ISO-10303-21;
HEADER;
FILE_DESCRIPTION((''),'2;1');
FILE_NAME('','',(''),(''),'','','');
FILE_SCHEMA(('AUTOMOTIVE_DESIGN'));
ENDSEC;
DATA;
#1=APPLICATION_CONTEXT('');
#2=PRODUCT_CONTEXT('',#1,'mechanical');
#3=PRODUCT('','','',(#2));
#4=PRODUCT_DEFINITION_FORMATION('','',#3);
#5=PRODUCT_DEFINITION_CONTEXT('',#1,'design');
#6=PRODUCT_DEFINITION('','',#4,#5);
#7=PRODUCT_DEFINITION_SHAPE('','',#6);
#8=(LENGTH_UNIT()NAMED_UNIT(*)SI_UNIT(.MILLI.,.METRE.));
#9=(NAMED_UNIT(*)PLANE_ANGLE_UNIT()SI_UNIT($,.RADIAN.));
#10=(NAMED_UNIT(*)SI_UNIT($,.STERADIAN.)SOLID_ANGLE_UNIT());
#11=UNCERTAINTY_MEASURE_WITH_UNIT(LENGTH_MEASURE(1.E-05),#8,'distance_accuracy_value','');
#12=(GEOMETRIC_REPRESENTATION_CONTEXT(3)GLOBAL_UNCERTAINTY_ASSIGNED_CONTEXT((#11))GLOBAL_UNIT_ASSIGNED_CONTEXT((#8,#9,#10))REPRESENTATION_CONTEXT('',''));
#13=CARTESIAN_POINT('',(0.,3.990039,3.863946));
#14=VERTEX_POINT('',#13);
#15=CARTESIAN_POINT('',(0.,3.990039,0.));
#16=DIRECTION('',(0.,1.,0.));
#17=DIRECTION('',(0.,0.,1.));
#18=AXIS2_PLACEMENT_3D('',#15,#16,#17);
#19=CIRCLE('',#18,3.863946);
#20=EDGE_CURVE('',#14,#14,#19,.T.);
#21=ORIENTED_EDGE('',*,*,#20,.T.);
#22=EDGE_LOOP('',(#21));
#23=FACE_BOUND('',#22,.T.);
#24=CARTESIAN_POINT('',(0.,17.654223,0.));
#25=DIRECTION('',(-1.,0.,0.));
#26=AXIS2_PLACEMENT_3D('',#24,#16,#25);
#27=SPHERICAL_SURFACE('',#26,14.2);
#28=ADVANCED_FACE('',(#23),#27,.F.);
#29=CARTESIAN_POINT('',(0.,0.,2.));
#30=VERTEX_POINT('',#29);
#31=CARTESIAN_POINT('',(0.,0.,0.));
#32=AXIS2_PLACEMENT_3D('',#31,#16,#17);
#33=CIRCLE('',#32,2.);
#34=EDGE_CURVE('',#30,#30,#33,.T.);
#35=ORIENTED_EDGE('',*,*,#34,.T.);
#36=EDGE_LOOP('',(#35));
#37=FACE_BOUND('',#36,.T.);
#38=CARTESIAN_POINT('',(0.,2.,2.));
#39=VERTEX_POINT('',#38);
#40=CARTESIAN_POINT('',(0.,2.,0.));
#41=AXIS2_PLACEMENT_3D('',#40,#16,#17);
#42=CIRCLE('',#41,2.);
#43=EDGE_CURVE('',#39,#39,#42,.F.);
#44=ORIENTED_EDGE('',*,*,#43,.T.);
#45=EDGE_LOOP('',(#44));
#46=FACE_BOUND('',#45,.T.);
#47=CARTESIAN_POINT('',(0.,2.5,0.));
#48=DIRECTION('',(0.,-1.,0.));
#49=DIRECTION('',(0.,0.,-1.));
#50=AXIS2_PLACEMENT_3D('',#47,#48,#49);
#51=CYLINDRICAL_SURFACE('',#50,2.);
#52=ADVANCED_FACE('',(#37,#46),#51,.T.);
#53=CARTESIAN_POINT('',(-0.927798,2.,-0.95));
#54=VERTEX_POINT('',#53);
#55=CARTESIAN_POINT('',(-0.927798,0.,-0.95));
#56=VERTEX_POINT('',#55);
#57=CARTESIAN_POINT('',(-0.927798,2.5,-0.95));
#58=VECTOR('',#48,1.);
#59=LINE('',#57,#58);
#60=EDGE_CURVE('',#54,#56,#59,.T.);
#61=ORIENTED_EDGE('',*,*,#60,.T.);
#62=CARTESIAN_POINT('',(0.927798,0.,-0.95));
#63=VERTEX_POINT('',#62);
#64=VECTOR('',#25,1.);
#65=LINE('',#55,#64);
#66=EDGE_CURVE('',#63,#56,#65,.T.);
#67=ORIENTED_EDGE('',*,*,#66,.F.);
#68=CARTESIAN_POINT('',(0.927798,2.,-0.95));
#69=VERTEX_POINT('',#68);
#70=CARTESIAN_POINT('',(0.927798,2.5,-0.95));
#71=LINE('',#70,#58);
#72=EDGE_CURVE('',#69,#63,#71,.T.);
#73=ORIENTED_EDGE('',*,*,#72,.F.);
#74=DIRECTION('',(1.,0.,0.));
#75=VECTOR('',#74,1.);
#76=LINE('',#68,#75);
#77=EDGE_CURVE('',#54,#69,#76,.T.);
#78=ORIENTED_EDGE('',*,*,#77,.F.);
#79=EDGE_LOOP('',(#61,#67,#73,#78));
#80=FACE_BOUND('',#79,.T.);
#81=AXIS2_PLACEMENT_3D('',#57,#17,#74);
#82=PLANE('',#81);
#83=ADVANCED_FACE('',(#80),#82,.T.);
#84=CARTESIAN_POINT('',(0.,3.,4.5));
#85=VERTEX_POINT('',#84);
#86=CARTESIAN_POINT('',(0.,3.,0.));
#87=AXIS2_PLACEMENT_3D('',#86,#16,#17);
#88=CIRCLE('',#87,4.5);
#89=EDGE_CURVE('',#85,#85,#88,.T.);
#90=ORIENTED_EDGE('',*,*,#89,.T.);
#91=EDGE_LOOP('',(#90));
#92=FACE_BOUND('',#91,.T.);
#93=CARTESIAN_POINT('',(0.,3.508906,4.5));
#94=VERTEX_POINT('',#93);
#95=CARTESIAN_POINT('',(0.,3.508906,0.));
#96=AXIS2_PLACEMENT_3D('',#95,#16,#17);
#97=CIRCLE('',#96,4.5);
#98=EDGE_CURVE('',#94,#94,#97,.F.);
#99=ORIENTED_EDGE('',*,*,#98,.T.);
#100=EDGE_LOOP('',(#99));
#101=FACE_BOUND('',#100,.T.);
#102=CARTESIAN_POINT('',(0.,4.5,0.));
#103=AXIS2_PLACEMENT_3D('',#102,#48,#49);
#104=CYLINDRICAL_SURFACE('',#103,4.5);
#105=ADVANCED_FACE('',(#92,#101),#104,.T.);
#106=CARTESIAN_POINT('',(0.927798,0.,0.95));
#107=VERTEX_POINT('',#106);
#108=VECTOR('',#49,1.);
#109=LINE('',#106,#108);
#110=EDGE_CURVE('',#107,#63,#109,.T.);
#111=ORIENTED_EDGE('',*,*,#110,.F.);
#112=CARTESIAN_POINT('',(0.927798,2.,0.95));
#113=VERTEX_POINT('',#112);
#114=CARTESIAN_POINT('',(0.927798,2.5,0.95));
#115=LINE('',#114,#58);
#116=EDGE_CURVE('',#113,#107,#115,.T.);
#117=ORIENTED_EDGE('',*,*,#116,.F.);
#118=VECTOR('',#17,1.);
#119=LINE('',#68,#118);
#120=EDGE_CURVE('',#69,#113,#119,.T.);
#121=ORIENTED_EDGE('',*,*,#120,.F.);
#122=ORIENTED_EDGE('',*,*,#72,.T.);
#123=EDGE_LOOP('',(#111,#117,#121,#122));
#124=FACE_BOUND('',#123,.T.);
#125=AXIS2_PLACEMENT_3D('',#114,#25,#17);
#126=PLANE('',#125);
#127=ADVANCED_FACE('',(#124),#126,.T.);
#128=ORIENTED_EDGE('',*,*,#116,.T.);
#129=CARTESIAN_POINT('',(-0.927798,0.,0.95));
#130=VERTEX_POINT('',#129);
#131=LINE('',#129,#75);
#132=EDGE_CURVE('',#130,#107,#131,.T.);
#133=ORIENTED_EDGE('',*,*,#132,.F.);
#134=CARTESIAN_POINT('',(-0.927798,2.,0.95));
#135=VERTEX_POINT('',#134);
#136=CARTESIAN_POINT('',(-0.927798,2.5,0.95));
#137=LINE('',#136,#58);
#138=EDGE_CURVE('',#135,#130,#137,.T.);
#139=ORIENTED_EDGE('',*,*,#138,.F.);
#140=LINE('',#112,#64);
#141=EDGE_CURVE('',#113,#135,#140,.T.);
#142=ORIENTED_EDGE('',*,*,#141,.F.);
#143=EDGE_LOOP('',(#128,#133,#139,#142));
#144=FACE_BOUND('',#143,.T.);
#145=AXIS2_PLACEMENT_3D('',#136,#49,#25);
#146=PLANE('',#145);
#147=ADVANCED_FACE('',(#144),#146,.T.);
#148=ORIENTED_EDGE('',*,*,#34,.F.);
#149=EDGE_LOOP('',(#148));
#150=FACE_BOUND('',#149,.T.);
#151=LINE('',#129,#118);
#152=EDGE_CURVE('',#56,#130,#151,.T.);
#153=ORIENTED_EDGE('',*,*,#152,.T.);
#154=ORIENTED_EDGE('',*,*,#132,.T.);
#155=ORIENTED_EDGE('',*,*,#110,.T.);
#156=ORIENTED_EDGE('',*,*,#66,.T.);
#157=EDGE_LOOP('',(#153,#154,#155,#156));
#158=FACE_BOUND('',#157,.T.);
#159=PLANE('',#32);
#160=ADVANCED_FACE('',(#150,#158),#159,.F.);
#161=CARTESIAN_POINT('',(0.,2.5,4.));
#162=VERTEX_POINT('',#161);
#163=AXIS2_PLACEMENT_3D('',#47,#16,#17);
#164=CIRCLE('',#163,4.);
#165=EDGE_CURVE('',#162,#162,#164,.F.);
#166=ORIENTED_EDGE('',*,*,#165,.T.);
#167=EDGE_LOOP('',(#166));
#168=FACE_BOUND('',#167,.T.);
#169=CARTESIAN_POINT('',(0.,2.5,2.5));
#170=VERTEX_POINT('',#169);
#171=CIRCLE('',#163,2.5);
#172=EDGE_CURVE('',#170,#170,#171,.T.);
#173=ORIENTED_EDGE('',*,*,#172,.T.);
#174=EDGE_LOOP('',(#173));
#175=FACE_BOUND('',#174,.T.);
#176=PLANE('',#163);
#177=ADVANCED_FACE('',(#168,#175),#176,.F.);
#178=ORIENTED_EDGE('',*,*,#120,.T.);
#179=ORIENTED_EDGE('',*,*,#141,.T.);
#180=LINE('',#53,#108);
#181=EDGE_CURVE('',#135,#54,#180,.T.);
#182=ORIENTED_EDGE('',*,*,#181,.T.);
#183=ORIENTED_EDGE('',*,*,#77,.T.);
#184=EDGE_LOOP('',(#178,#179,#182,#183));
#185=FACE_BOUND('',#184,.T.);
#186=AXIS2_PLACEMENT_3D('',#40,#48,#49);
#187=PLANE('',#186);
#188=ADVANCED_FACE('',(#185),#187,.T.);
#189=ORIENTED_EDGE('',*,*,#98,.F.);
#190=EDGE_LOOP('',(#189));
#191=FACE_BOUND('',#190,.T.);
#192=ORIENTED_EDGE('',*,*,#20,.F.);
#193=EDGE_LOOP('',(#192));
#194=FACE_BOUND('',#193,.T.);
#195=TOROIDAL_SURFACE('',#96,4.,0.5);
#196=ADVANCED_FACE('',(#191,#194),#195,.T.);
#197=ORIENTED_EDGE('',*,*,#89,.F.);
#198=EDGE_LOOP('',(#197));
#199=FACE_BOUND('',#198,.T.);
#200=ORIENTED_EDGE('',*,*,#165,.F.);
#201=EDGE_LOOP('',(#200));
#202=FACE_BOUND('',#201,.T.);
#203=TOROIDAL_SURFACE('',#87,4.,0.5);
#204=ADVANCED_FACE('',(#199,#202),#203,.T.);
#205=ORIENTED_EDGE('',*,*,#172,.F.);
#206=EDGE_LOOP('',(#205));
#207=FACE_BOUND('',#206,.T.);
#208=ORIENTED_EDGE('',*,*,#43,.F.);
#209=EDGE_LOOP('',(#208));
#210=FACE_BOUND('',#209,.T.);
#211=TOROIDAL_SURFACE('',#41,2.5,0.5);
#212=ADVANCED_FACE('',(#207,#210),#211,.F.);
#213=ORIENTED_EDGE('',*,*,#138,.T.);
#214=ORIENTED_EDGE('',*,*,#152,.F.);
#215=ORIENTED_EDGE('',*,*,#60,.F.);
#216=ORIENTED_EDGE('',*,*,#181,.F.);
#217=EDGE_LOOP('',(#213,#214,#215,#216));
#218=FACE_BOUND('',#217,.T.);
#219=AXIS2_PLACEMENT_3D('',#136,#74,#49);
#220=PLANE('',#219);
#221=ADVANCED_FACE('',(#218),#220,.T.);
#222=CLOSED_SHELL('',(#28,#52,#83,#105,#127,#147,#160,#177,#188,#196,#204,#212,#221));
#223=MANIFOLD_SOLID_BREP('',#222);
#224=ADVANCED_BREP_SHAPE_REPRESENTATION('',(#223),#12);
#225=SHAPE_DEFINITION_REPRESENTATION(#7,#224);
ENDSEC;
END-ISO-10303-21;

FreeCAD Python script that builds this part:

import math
import FreeCAD as App
import Part
import Sketcher
from FreeCAD import Vector


def edges_at(feature, points):
    """Names of the edges that pass closest to the given points."""
    edges = feature.Shape.Edges
    near = lambda p: min(range(len(edges)), key=lambda i: edges[i].distToShape(Part.Vertex(*p))[0])
    return sorted({f"Edge{near(p) + 1}" for p in points})


def add_polygon(sketch, points):
    """Adds a closed chain of lines whose ends are joined by coincident constraints."""
    first, n = sketch.GeometryCount, len(points)
    for a, b in zip(points, points[1:] + points[:1]):
        sketch.addGeometry(Part.LineSegment(App.Vector(*a, 0), App.Vector(*b, 0)), False)
    for i in range(n):
        sketch.addConstraint(Sketcher.Constraint("Coincident", first + i, 2, first + (i + 1) % n, 1))

doc = App.newDocument("Part")
body = doc.addObject("PartDesign::Body", "Body")

# Sketch on XZ plane
sketch1 = body.newObject("Sketcher::SketchObject", "Sketch")
sketch1.AttachmentSupport = (doc.getObject("XZ_Plane"), [""])
sketch1.MapMode = "FlatFace"
sketch1.addGeometry(Part.Circle(Vector(0, 0, 0), Vector(0, 0, 1), 2), False)  # 0
add_polygon(sketch1, [(0.927798, 0.95), (-0.927798, 0.95), (-0.927798, -0.95), (0.927798, -0.95)])  # lines 1-4
sketch1.addConstraint(Sketcher.Constraint("Horizontal", 1))
sketch1.addConstraint(Sketcher.Constraint("Vertical", 2))
sketch1.addConstraint(Sketcher.Constraint("Horizontal", 3))
sketch1.addConstraint(Sketcher.Constraint("Vertical", 4))
sketch1.addConstraint(Sketcher.Constraint("Coincident", 0, 3, -1, 1))
sketch1.addConstraint(Sketcher.Constraint("Symmetric", 1, 2, 3, 2, -1, 1))
sketch1.addConstraint(Sketcher.Constraint("Diameter", 0, 4.0))
sketch1.addConstraint(Sketcher.Constraint("DistanceY", 2, 2, 2, 1, 1.9))
sketch1.addConstraint(Sketcher.Constraint("DistanceX", 1, 2, 1, 1, 1.855596))
pad1 = body.newObject("PartDesign::Pad", "Pad")
pad1.Profile = sketch1
pad1.Length = 2.5
pad1.Reversed = True

# Sketch on XZ plane
sketch2 = body.newObject("Sketcher::SketchObject", "Sketch001")
sketch2.AttachmentSupport = (doc.getObject("XZ_Plane"), [""])
sketch2.MapMode = "FlatFace"
sketch2.AttachmentOffset = App.Placement(Vector(0, 0, -2.5), App.Rotation())
sketch2.addGeometry(Part.Circle(Vector(0, 0, 0), Vector(0, 0, 1), 4.5), False)
sketch2.addConstraint(Sketcher.Constraint("Coincident", 0, 3, -1, 1))
sketch2.addConstraint(Sketcher.Constraint("Diameter", 0, 9.0))
pad2 = body.newObject("PartDesign::Pad", "Pad001")
pad2.Profile = sketch2
pad2.Length = 2
pad2.Reversed = True

# Sketch on XY plane
sketch3 = body.newObject("Sketcher::SketchObject", "Sketch002")
sketch3.AttachmentSupport = (doc.getObject("XY_Plane"), [""])
sketch3.MapMode = "FlatFace"
sketch3.addGeometry(Part.LineSegment(Vector(0, 4.5, 0), Vector(-5.348496, 4.5, 0)), False)
sketch3.addGeometry(Part.ArcOfCircle(Part.Circle(Vector(0, 17.654224, 0), Vector(0, 0, 1), 14.2), math.radians(-112.126615), math.radians(-90)), False)
sketch3.addGeometry(Part.LineSegment(Vector(0, 3.454223, 0), Vector(0, 4.5, 0)), False)
sketch3.addConstraint(Sketcher.Constraint("Coincident", 0, 2, 1, 1))
sketch3.addConstraint(Sketcher.Constraint("Coincident", 1, 2, 2, 1))
sketch3.addConstraint(Sketcher.Constraint("Coincident", 2, 2, 0, 1))
sketch3.addConstraint(Sketcher.Constraint("Horizontal", 0))
sketch3.addConstraint(Sketcher.Constraint("Vertical", 2))
sketch3.addConstraint(Sketcher.Constraint("PointOnObject", 1, 3, -2))
sketch3.addConstraint(Sketcher.Constraint("PointOnObject", 1, 2, -2))
sketch3.addConstraint(Sketcher.Constraint("Radius", 1, 14.2))
sketch3.addConstraint(Sketcher.Constraint("DistanceY", -1, 1, 0, 2, 4.5))
sketch3.addConstraint(Sketcher.Constraint("DistanceX", 0, 2, 0, 1, 5.348496))
groove = body.newObject("PartDesign::Groove", "Groove")
groove.Profile = sketch3
groove.ReferenceAxis = (sketch3, ["V_Axis"])
groove.Angle = 360
doc.recompute()

fillet = body.newObject("PartDesign::Fillet", "Fillet")
fillet.Base = (groove, edges_at(groove, [(0, 2.5, -4.5), (0, 4.186, -4.5), (0, 2.5, -2)]))
fillet.Radius = 0.5

# Sketch on XZ plane
sketch4 = body.newObject("Sketcher::SketchObject", "Sketch003")
sketch4.AttachmentSupport = (doc.getObject("XZ_Plane"), [""])
sketch4.MapMode = "FlatFace"
sketch4.AttachmentOffset = App.Placement(Vector(0, 0, -2.5), App.Rotation())
add_polygon(sketch4, [(-0.927798, 0.95), (-0.927798, -0.95), (0.927798, -0.95), (0.927798, 0.95)])  # lines 0-3
sketch4.addConstraint(Sketcher.Constraint("Vertical", 0))
sketch4.addConstraint(Sketcher.Constraint("Horizontal", 1))
sketch4.addConstraint(Sketcher.Constraint("Vertical", 2))
sketch4.addConstraint(Sketcher.Constraint("Horizontal", 3))
sketch4.addConstraint(Sketcher.Constraint("Symmetric", 0, 2, 2, 2, -1, 1))
sketch4.addConstraint(Sketcher.Constraint("DistanceY", 0, 2, 0, 1, 1.9))
sketch4.addConstraint(Sketcher.Constraint("DistanceX", 1, 1, 1, 2, 1.855596))
pad3 = body.newObject("PartDesign::Pad", "Pad002")
pad3.Profile = sketch4
pad3.Length = 0.5

doc.recompute()
